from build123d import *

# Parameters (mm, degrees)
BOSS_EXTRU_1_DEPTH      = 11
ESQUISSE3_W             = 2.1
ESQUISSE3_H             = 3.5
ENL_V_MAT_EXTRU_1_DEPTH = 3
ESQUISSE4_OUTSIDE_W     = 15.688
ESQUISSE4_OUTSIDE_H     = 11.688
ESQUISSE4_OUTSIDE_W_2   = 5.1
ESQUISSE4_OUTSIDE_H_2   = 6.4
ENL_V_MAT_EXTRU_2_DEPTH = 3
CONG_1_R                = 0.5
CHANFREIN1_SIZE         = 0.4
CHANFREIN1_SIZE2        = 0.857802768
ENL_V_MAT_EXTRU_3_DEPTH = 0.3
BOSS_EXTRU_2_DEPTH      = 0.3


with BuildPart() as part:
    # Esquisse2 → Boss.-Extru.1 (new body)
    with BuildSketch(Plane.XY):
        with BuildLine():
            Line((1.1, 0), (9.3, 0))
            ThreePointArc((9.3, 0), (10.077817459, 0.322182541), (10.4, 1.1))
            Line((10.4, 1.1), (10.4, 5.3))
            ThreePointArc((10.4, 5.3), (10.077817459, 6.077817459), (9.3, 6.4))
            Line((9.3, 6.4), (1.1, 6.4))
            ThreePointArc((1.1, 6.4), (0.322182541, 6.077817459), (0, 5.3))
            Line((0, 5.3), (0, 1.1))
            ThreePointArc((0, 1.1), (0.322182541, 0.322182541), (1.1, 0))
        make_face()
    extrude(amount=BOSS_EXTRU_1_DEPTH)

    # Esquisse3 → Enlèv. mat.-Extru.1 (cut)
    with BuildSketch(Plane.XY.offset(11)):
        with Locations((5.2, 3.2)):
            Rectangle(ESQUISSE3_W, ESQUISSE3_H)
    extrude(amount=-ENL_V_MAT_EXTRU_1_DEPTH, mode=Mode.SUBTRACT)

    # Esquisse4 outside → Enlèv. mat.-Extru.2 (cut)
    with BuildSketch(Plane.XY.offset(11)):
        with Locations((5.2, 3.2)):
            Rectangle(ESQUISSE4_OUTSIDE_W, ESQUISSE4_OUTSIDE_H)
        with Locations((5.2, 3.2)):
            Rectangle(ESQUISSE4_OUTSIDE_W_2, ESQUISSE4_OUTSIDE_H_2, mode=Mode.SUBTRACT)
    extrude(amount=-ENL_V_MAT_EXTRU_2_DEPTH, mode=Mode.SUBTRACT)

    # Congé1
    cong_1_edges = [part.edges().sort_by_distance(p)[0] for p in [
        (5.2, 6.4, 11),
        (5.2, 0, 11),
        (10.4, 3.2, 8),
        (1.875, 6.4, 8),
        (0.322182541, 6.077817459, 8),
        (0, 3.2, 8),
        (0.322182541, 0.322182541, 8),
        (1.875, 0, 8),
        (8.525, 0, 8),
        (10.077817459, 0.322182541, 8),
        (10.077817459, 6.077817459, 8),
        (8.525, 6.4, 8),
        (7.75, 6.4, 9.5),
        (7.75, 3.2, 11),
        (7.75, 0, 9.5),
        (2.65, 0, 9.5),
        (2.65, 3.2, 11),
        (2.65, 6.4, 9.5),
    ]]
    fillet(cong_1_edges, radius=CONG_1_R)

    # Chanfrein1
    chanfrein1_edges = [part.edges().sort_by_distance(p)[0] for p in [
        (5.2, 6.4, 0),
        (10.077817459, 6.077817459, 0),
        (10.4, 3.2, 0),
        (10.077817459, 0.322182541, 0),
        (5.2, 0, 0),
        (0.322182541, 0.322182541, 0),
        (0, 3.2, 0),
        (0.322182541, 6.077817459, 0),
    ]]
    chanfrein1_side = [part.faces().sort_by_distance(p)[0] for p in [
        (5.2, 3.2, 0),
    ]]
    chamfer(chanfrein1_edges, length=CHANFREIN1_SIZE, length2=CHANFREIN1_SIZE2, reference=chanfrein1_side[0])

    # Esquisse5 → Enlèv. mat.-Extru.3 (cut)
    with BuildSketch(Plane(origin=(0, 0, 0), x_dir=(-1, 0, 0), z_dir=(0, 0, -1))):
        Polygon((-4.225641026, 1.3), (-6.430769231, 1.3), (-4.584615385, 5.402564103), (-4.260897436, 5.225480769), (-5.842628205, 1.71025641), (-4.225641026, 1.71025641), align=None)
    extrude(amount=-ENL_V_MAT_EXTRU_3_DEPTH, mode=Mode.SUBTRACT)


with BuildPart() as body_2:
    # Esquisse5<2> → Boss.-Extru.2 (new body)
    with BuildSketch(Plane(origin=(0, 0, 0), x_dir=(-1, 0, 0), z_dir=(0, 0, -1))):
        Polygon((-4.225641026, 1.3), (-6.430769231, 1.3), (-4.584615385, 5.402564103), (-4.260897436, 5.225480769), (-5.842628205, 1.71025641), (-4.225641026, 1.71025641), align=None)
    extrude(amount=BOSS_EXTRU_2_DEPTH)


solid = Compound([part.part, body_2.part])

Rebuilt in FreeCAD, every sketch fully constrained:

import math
import FreeCAD as App
import Part
import Sketcher
from FreeCAD import Vector
Q = App.Units.Quantity


def edges_at(feature, points):
    """Names of the edges that pass closest to the given points."""
    edges = feature.Shape.Edges
    near = lambda p: min(range(len(edges)), key=lambda i: edges[i].distToShape(Part.Vertex(*p))[0])
    return sorted({f"Edge{near(p) + 1}" for p in points})

doc = App.newDocument("Part")
body = doc.addObject("PartDesign::Body", "Body")

# Sketch on XY plane
sketch1 = doc.addObject("Sketcher::SketchObject", "Sketch")
body.addObject(sketch1)
sketch1.AttachmentSupport = (doc.XY_Plane, [""])
sketch1.MapMode = "FlatFace"
sketch1.addGeometry(Part.LineSegment(Vector(1.1, 0, 0), Vector(9.3, 0, 0)), False)
sketch1.addGeometry(Part.ArcOfCircle(Part.Circle(Vector(9.3, 1.1, 0), Vector(0, 0, 1), 1.1), math.radians(-90), math.radians(0)), False)
sketch1.addGeometry(Part.LineSegment(Vector(10.4, 1.1, 0), Vector(10.4, 5.3, 0)), False)
sketch1.addGeometry(Part.ArcOfCircle(Part.Circle(Vector(9.3, 5.3, 0), Vector(0, 0, 1), 1.1), math.radians(0), math.radians(90)), False)
sketch1.addGeometry(Part.LineSegment(Vector(9.3, 6.4, 0), Vector(1.1, 6.4, 0)), False)
sketch1.addGeometry(Part.ArcOfCircle(Part.Circle(Vector(1.1, 5.3, 0), Vector(0, 0, 1), 1.1), math.radians(90), math.radians(180)), False)
sketch1.addGeometry(Part.LineSegment(Vector(0, 5.3, 0), Vector(0, 1.1, 0)), False)
sketch1.addGeometry(Part.ArcOfCircle(Part.Circle(Vector(1.1, 1.1, 0), Vector(0, 0, 1), 1.1), math.radians(-180), math.radians(-90)), False)
sketch1.addConstraint(Sketcher.Constraint("Tangent", 0, 2, 1, 1))
sketch1.addConstraint(Sketcher.Constraint("Tangent", 1, 2, 2, 1))
sketch1.addConstraint(Sketcher.Constraint("Tangent", 2, 2, 3, 1))
sketch1.addConstraint(Sketcher.Constraint("Tangent", 3, 2, 4, 1))
sketch1.addConstraint(Sketcher.Constraint("Tangent", 4, 2, 5, 1))
sketch1.addConstraint(Sketcher.Constraint("Tangent", 5, 2, 6, 1))
sketch1.addConstraint(Sketcher.Constraint("Tangent", 6, 2, 7, 1))
sketch1.addConstraint(Sketcher.Constraint("Tangent", 7, 2, 0, 1))
sketch1.addConstraint(Sketcher.Constraint("Horizontal", 0))
sketch1.addConstraint(Sketcher.Constraint("Vertical", 2))
sketch1.addConstraint(Sketcher.Constraint("Horizontal", 4))
sketch1.addConstraint(Sketcher.Constraint("Vertical", 6))
sketch1.addConstraint(Sketcher.Constraint("Equal", 1, 3))
sketch1.addConstraint(Sketcher.Constraint("Equal", 3, 5))
sketch1.addConstraint(Sketcher.Constraint("Equal", 5, 7))
sketch1.addConstraint(Sketcher.Constraint("PointOnObject", 0, 2, -1))
sketch1.addConstraint(Sketcher.Constraint("PointOnObject", 5, 2, -2))
sketch1.addConstraint(Sketcher.Constraint("Radius", 1, Q("1.1 mm")))
sketch1.addConstraint(Sketcher.Constraint("DistanceX", 0, 1, 0, 2, Q("8.2 mm")))
sketch1.addConstraint(Sketcher.Constraint("DistanceY", 2, 1, 2, 2, Q("4.2 mm")))
pad1 = doc.addObject("PartDesign::Pad", "Pad")
body.addObject(pad1)
pad1.Profile = sketch1
pad1.Length = 11

# Sketch on XY plane
sketch2 = doc.addObject("Sketcher::SketchObject", "Sketch001")
body.addObject(sketch2)
sketch2.AttachmentSupport = (doc.XY_Plane, [""])
sketch2.MapMode = "FlatFace"
sketch2.AttachmentOffset = App.Placement(Vector(0, 0, 11), App.Rotation())
sketch2.addGeometry(Part.LineSegment(Vector(4.2, 5, 0), Vector(4.2, 1.4, 0)), False)
sketch2.addGeometry(Part.LineSegment(Vector(4.2, 1.4, 0), Vector(6.2, 1.4, 0)), False)
sketch2.addGeometry(Part.LineSegment(Vector(6.2, 1.4, 0), Vector(6.2, 5, 0)), False)
sketch2.addGeometry(Part.LineSegment(Vector(6.2, 5, 0), Vector(4.2, 5, 0)), False)
sketch2.addConstraint(Sketcher.Constraint("Coincident", 0, 2, 1, 1))
sketch2.addConstraint(Sketcher.Constraint("Coincident", 1, 2, 2, 1))
sketch2.addConstraint(Sketcher.Constraint("Coincident", 2, 2, 3, 1))
sketch2.addConstraint(Sketcher.Constraint("Coincident", 3, 2, 0, 1))
sketch2.addConstraint(Sketcher.Constraint("Vertical", 0))
sketch2.addConstraint(Sketcher.Constraint("Horizontal", 1))
sketch2.addConstraint(Sketcher.Constraint("Vertical", 2))
sketch2.addConstraint(Sketcher.Constraint("Horizontal", 3))
sketch2.addConstraint(Sketcher.Constraint("DistanceX", 1, 1, 1, 2, Q("2.1 mm")))
sketch2.addConstraint(Sketcher.Constraint("DistanceY", 0, 2, 0, 1, Q("3.5 mm")))
sketch2.addConstraint(Sketcher.Constraint("DistanceX", -1, 1, 0, 2, Q("4.15 mm")))
sketch2.addConstraint(Sketcher.Constraint("DistanceY", -1, 1, 0, 2, Q("1.45 mm")))
pocket1 = doc.addObject("PartDesign::Pocket", "Pocket")
body.addObject(pocket1)
pocket1.Profile = sketch2
pocket1.Length = 3

# Sketch on XY plane
sketch3 = doc.addObject("Sketcher::SketchObject", "Sketch002")
body.addObject(sketch3)
sketch3.AttachmentSupport = (doc.XY_Plane, [""])
sketch3.MapMode = "FlatFace"
sketch3.AttachmentOffset = App.Placement(Vector(0, 0, 11), App.Rotation())
sketch3.addGeometry(Part.LineSegment(Vector(-3, 9, 0), Vector(-3, -3, 0)), False)
sketch3.addGeometry(Part.LineSegment(Vector(-3, -3, 0), Vector(13, -3, 0)), False)
sketch3.addGeometry(Part.LineSegment(Vector(13, -3, 0), Vector(13, 9, 0)), False)
sketch3.addGeometry(Part.LineSegment(Vector(13, 9, 0), Vector(-3, 9, 0)), False)
sketch3.addGeometry(Part.LineSegment(Vector(8, 0, 0), Vector(3, 0, 0)), False)
sketch3.addGeometry(Part.LineSegment(Vector(3, 0, 0), Vector(3, 6, 0)), False)
sketch3.addGeometry(Part.LineSegment(Vector(3, 6, 0), Vector(8, 6, 0)), False)
sketch3.addGeometry(Part.LineSegment(Vector(8, 6, 0), Vector(8, 0, 0)), False)
sketch3.addConstraint(Sketcher.Constraint("Coincident", 0, 2, 1, 1))
sketch3.addConstraint(Sketcher.Constraint("Coincident", 1, 2, 2, 1))
sketch3.addConstraint(Sketcher.Constraint("Coincident", 2, 2, 3, 1))
sketch3.addConstraint(Sketcher.Constraint("Coincident", 3, 2, 0, 1))
sketch3.addConstraint(Sketcher.Constraint("Coincident", 4, 2, 5, 1))
sketch3.addConstraint(Sketcher.Constraint("Coincident", 5, 2, 6, 1))
sketch3.addConstraint(Sketcher.Constraint("Coincident", 6, 2, 7, 1))
sketch3.addConstraint(Sketcher.Constraint("Coincident", 7, 2, 4, 1))
sketch3.addConstraint(Sketcher.Constraint("Vertical", 0))
sketch3.addConstraint(Sketcher.Constraint("Horizontal", 1))
sketch3.addConstraint(Sketcher.Constraint("Vertical", 2))
sketch3.addConstraint(Sketcher.Constraint("Horizontal", 3))
sketch3.addConstraint(Sketcher.Constraint("Horizontal", 4))
sketch3.addConstraint(Sketcher.Constraint("Vertical", 5))
sketch3.addConstraint(Sketcher.Constraint("Horizontal", 6))
sketch3.addConstraint(Sketcher.Constraint("Vertical", 7))
sketch3.addConstraint(Sketcher.Constraint("PointOnObject", 4, 2, -1))
sketch3.addConstraint(Sketcher.Constraint("DistanceX", 4, 2, 4, 1, Q("5.1 mm")))
sketch3.addConstraint(Sketcher.Constraint("DistanceY", 5, 1, 5, 2, Q("6.4 mm")))
sketch3.addConstraint(Sketcher.Constraint("DistanceX", 1, 1, 1, 2, Q("15.688 mm")))
sketch3.addConstraint(Sketcher.Constraint("DistanceY", 0, 2, 0, 1, Q("11.688 mm")))
sketch3.addConstraint(Sketcher.Constraint("DistanceX", -1, 1, 4, 2, Q("2.65 mm")))
sketch3.addConstraint(Sketcher.Constraint("DistanceX", 0, 2, -1, 1, Q("2.644 mm")))
sketch3.addConstraint(Sketcher.Constraint("DistanceY", 0, 2, -1, 1, Q("2.644 mm")))
pocket2 = doc.addObject("PartDesign::Pocket", "Pocket001")
body.addObject(pocket2)
pocket2.Profile = sketch3
pocket2.Length = 3
doc.recompute()

fillet = doc.addObject("PartDesign::Fillet", "Fillet")
body.addObject(fillet)
fillet.Base = (pocket2, edges_at(pocket2, [
    (5.2, 6.4, 11),
    (5.2, 0, 11),
    (10.4, 3.2, 8),
    (1.875, 6.4, 8),
    (0.322, 6.078, 8),
    (0, 3.2, 8),
    (0.322, 0.322, 8),
    (1.875, 0, 8),
    (8.525, 0, 8),
    (10.078, 0.322, 8),
    (10.078, 6.078, 8),
    (8.525, 6.4, 8),
    (7.75, 6.4, 9.5),
    (7.75, 3.2, 11),
    (7.75, 0, 9.5),
    (2.65, 0, 9.5),
    (2.65, 3.2, 11),
    (2.65, 6.4, 9.5),
]))
fillet.Radius = 0.5
doc.recompute()

chamfer = doc.addObject("PartDesign::Chamfer", "Chamfer")
body.addObject(chamfer)
chamfer.Base = (fillet, edges_at(fillet, [
    (5.2, 6.4, 0),
    (10.078, 6.078, 0),
    (10.4, 3.2, 0),
    (10.078, 0.322, 0),
    (5.2, 0, 0),
    (0.322, 0.322, 0),
    (0, 3.2, 0),
    (0.322, 6.078, 0),
]))
chamfer.ChamferType = "Two distances"
chamfer.Size = 0.4
chamfer.Size2 = 0.857803

# Sketch on XY plane
sketch4 = doc.addObject("Sketcher::SketchObject", "Sketch003")
body.addObject(sketch4)
sketch4.AttachmentSupport = (doc.XY_Plane, [""])
sketch4.MapMode = "FlatFace"
sketch4.addGeometry(Part.LineSegment(Vector(6.43, 1.3, 0), Vector(4.23, 1.3, 0)), False)
sketch4.addGeometry(Part.LineSegment(Vector(4.23, 1.3, 0), Vector(4.23, 1.71, 0)), False)
sketch4.addGeometry(Part.LineSegment(Vector(4.23, 1.71, 0), Vector(5.84, 1.71, 0)), False)
sketch4.addGeometry(Part.LineSegment(Vector(5.84, 1.71, 0), Vector(4.26, 5.23, 0)), False)
sketch4.addGeometry(Part.LineSegment(Vector(4.26, 5.23, 0), Vector(4.58, 5.4, 0)), False)
sketch4.addGeometry(Part.LineSegment(Vector(4.58, 5.4, 0), Vector(6.43, 1.3, 0)), False)
sketch4.addConstraint(Sketcher.Constraint("Coincident", 0, 2, 1, 1))
sketch4.addConstraint(Sketcher.Constraint("Coincident", 1, 2, 2, 1))
sketch4.addConstraint(Sketcher.Constraint("Coincident", 2, 2, 3, 1))
sketch4.addConstraint(Sketcher.Constraint("Coincident", 3, 2, 4, 1))
sketch4.addConstraint(Sketcher.Constraint("Coincident", 4, 2, 5, 1))
sketch4.addConstraint(Sketcher.Constraint("Coincident", 5, 2, 0, 1))
sketch4.addConstraint(Sketcher.Constraint("Horizontal", 0))
sketch4.addConstraint(Sketcher.Constraint("Vertical", 1))
sketch4.addConstraint(Sketcher.Constraint("Horizontal", 2))
sketch4.addConstraint(Sketcher.Constraint("DistanceY", -1, 1, 0, 2, Q("1.3 mm")))
sketch4.addConstraint(Sketcher.Constraint("DistanceX", 0, 2, 0, 1, Q("2.205128 mm")))
sketch4.addConstraint(Sketcher.Constraint("DistanceX", 2, 1, 2, 2, Q("1.616987 mm")))
sketch4.addConstraint(Sketcher.Constraint("DistanceY", 1, 1, 1, 2, Q("0.410256 mm")))
sketch4.addConstraint(Sketcher.Constraint("DistanceX", -1, 1, 0, 2, Q("4.225641 mm")))
sketch4.addConstraint(Sketcher.Constraint("DistanceY", -1, 1, 3, 2, Q("5.225481 mm")))
sketch4.addConstraint(Sketcher.Constraint("DistanceX", 3, 2, 2, 2, Q("1.581731 mm")))
sketch4.addConstraint(Sketcher.Constraint("Distance", 4, Q("0.368988 mm")))
sketch4.addConstraint(Sketcher.Constraint("Distance", 5, Q("4.498813 mm")))
pocket3 = doc.addObject("PartDesign::Pocket", "Pocket002")
body.addObject(pocket3)
pocket3.Profile = sketch4
pocket3.Length = 0.3
pocket3.Reversed = True
body2 = doc.addObject("PartDesign::Body", "Body001")

# Sketch on XY plane
sketch5 = doc.addObject("Sketcher::SketchObject", "Sketch004")
body2.addObject(sketch5)
sketch5.AttachmentSupport = (doc.getObject("XY_Plane001"), [""])
sketch5.MapMode = "FlatFace"
sketch5.addGeometry(Part.LineSegment(Vector(6.43, 1.3, 0), Vector(4.23, 1.3, 0)), False)
sketch5.addGeometry(Part.LineSegment(Vector(4.23, 1.3, 0), Vector(4.23, 1.71, 0)), False)
sketch5.addGeometry(Part.LineSegment(Vector(4.23, 1.71, 0), Vector(5.84, 1.71, 0)), False)
sketch5.addGeometry(Part.LineSegment(Vector(5.84, 1.71, 0), Vector(4.26, 5.23, 0)), False)
sketch5.addGeometry(Part.LineSegment(Vector(4.26, 5.23, 0), Vector(4.58, 5.4, 0)), False)
sketch5.addGeometry(Part.LineSegment(Vector(4.58, 5.4, 0), Vector(6.43, 1.3, 0)), False)
sketch5.addConstraint(Sketcher.Constraint("Coincident", 0, 2, 1, 1))
sketch5.addConstraint(Sketcher.Constraint("Coincident", 1, 2, 2, 1))
sketch5.addConstraint(Sketcher.Constraint("Coincident", 2, 2, 3, 1))
sketch5.addConstraint(Sketcher.Constraint("Coincident", 3, 2, 4, 1))
sketch5.addConstraint(Sketcher.Constraint("Coincident", 4, 2, 5, 1))
sketch5.addConstraint(Sketcher.Constraint("Coincident", 5, 2, 0, 1))
sketch5.addConstraint(Sketcher.Constraint("Horizontal", 0))
sketch5.addConstraint(Sketcher.Constraint("Vertical", 1))
sketch5.addConstraint(Sketcher.Constraint("Horizontal", 2))
sketch5.addConstraint(Sketcher.Constraint("DistanceY", -1, 1, 0, 2, Q("1.3 mm")))
sketch5.addConstraint(Sketcher.Constraint("DistanceX", 0, 2, 0, 1, Q("2.205128 mm")))
sketch5.addConstraint(Sketcher.Constraint("DistanceX", 2, 1, 2, 2, Q("1.616987 mm")))
sketch5.addConstraint(Sketcher.Constraint("DistanceY", 1, 1, 1, 2, Q("0.410256 mm")))
sketch5.addConstraint(Sketcher.Constraint("DistanceX", -1, 1, 0, 2, Q("4.225641 mm")))
sketch5.addConstraint(Sketcher.Constraint("DistanceY", -1, 1, 3, 2, Q("5.225481 mm")))
sketch5.addConstraint(Sketcher.Constraint("DistanceX", 3, 2, 2, 2, Q("1.581731 mm")))
sketch5.addConstraint(Sketcher.Constraint("Distance", 4, Q("0.368988 mm")))
sketch5.addConstraint(Sketcher.Constraint("Distance", 5, Q("4.498813 mm")))
pad2 = doc.addObject("PartDesign::Pad", "Pad001")
body2.addObject(pad2)
pad2.Profile = sketch5
pad2.Length = 0.3
pad2.Reversed = True

doc.recompute()
